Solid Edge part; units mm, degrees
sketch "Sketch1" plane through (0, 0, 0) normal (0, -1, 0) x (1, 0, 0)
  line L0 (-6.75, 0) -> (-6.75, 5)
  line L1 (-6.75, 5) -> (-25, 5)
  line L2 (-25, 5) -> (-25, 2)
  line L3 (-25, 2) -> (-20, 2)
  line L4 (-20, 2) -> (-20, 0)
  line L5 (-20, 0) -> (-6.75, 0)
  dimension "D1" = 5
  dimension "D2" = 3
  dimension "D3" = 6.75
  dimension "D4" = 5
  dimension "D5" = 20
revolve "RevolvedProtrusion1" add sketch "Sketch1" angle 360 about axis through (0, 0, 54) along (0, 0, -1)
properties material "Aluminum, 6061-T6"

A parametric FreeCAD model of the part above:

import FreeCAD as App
import Part
import Sketcher
Q = App.Units.Quantity

doc = App.newDocument("Part")
params = doc.addObject("Spreadsheet::Sheet", "Params")
for row, (alias, value) in enumerate([
    ("sketch1_width", "5 mm"),
    ("sketch1_height", "3 mm"),
    ("sketch1_width2", "13.25 mm"),
    ("revolution_angle", "360 deg"),
], start=1):
    params.set(f"A{row}", alias)
    params.set(f"B{row}", "=" + value)
    params.setAlias(f"B{row}", alias)

body = doc.addObject("PartDesign::Body", "Body")

sketch1 = body.newObject("Sketcher::SketchObject", "Sketch")
sketch1.AttachmentSupport = (doc.getObject("XZ_Plane"), [""])
sketch1.MapMode = "FlatFace"
sketch1.addGeometry([
    Part.LineSegment(App.Vector(-20, 0, 0), App.Vector(-6.8, 0, 0)),
    Part.LineSegment(App.Vector(-6.8, 0, 0), App.Vector(-6.8, 5, 0)),
    Part.LineSegment(App.Vector(-6.8, 5, 0), App.Vector(-25, 5, 0)),
    Part.LineSegment(App.Vector(-25, 5, 0), App.Vector(-25, 2, 0)),
    Part.LineSegment(App.Vector(-25, 2, 0), App.Vector(-20, 2, 0)),
    Part.LineSegment(App.Vector(-20, 2, 0), App.Vector(-20, 0, 0)),
], False)
sketch1.addConstraint([
    Sketcher.Constraint("Coincident", 0, 2, 1, 1),
    Sketcher.Constraint("Coincident", 1, 2, 2, 1),
    Sketcher.Constraint("Coincident", 2, 2, 3, 1),
    Sketcher.Constraint("Coincident", 3, 2, 4, 1),
    Sketcher.Constraint("Coincident", 4, 2, 5, 1),
    Sketcher.Constraint("Coincident", 5, 2, 0, 1),
    Sketcher.Constraint("Horizontal", 0),
    Sketcher.Constraint("Vertical", 1),
    Sketcher.Constraint("Horizontal", 2),
    Sketcher.Constraint("Vertical", 3),
    Sketcher.Constraint("Horizontal", 4),
    Sketcher.Constraint("Vertical", 5),
    Sketcher.Constraint("PointOnObject", 0, 2, -1),
    Sketcher.Constraint("Equal", 4, 1),
    Sketcher.Constraint("DistanceX", 2, 2, -1, 1, Q("25 mm")),
    Sketcher.Constraint("DistanceX", 4, 1, 4, 2, Q("5 mm")),
    Sketcher.Constraint("DistanceY", 3, 2, 3, 1, Q("3 mm")),
    Sketcher.Constraint("DistanceX", 0, 1, 0, 2, Q("13.25 mm")),
])
sketch1.setExpression("Constraints[15]", "Params.sketch1_width")
sketch1.setExpression("Constraints[16]", "Params.sketch1_height")
sketch1.setExpression("Constraints[17]", "Params.sketch1_width2")
revolution = body.newObject("PartDesign::Revolution", "Revolution")
revolution.Profile = sketch1
revolution.ReferenceAxis = (sketch1, ["V_Axis"])
revolution.setExpression("Angle", "Params.revolution_angle")

doc.recompute()
